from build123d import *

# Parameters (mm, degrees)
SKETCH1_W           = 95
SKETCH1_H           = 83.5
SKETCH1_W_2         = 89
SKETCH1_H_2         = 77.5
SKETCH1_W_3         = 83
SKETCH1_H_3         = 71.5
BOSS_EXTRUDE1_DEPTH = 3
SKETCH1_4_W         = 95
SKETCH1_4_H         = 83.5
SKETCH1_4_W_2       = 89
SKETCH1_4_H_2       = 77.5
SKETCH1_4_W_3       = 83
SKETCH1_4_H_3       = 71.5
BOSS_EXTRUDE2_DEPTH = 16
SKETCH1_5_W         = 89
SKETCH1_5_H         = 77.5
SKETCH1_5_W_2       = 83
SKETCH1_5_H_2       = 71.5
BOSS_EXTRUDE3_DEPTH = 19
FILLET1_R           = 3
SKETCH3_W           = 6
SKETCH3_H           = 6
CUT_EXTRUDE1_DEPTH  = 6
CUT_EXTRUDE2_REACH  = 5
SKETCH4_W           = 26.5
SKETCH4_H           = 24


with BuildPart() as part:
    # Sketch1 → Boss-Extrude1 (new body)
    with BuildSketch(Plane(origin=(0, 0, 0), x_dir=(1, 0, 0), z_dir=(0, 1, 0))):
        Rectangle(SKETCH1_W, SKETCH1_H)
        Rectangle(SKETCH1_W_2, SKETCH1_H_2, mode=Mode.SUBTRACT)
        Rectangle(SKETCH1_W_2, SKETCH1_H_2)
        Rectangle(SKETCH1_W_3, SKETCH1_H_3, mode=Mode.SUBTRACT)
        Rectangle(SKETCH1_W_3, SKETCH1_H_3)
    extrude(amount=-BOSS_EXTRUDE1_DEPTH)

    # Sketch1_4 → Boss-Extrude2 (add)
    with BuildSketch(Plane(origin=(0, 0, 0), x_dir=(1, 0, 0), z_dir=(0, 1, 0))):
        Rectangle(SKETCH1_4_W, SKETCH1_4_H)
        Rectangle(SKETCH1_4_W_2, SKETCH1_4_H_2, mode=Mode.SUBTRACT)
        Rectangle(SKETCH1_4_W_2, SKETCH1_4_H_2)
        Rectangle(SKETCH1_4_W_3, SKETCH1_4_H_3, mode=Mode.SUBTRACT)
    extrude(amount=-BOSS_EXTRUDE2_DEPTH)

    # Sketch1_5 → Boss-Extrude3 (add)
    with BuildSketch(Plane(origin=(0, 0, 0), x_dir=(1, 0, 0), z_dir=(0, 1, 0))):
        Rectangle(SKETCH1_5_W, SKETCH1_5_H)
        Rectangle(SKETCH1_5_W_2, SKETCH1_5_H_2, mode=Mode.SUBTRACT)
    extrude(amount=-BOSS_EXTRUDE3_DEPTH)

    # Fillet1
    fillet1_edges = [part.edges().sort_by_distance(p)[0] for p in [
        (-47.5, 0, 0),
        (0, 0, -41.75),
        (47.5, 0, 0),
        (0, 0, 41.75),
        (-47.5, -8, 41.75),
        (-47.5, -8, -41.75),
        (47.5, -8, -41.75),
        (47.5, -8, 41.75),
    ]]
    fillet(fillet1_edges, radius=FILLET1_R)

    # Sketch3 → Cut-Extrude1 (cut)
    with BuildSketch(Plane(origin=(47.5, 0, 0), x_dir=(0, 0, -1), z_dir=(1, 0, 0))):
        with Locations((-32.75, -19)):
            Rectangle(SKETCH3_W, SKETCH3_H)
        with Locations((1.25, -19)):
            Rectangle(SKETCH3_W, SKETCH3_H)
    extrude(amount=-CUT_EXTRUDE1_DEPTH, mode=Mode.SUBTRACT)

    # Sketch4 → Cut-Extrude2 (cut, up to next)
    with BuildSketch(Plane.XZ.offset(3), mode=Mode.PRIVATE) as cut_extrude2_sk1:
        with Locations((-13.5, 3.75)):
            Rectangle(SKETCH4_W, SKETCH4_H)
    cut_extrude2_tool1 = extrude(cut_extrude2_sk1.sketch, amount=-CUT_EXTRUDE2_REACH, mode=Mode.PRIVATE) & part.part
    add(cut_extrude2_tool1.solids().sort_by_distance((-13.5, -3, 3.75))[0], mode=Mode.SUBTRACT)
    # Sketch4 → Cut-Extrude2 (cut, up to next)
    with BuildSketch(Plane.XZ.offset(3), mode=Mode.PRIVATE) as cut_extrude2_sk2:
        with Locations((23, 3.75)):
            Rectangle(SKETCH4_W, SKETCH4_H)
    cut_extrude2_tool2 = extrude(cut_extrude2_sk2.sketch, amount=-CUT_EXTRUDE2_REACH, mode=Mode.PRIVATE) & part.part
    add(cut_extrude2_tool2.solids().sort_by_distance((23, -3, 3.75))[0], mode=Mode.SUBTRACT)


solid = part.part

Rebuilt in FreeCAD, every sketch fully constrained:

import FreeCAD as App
import Part
import Sketcher
from FreeCAD import Vector


def edges_at(feature, points):
    """Names of the edges that pass closest to the given points."""
    edges = feature.Shape.Edges
    near = lambda p: min(range(len(edges)), key=lambda i: edges[i].distToShape(Part.Vertex(*p))[0])
    return sorted({f"Edge{near(p) + 1}" for p in points})


def add_polygon(sketch, points):
    """Adds a closed chain of lines whose ends are joined by coincident constraints."""
    first, n = sketch.GeometryCount, len(points)
    for a, b in zip(points, points[1:] + points[:1]):
        sketch.addGeometry(Part.LineSegment(App.Vector(*a, 0), App.Vector(*b, 0)), False)
    for i in range(n):
        sketch.addConstraint(Sketcher.Constraint("Coincident", first + i, 2, first + (i + 1) % n, 1))

doc = App.newDocument("Part")
params = doc.addObject("Spreadsheet::Sheet", "Params")
for row, (alias, value) in enumerate([
    ("sketch1_width", "95 mm"),
    ("sketch1_height", "83.5 mm"),
    ("pad1_length", "3 mm"),
    ("sketch2_width", "95 mm"),
    ("sketch2_width2", "83 mm"),
    ("sketch2_height", "83.5 mm"),
    ("sketch2_height2", "71.5 mm"),
    ("pad2_length", "16 mm"),
    ("sketch3_width", "89 mm"),
    ("sketch3_width2", "83 mm"),
    ("sketch3_height", "77.5 mm"),
    ("sketch3_height2", "71.5 mm"),
    ("pad3_length", "19 mm"),
    ("fillet_radius", "3 mm"),
    ("sketch4_width", "6 mm"),
    ("pocket1_length", "6 mm"),
    ("sketch5_height", "24 mm"),
    ("sketch5_width", "26.5 mm"),
    ("sketch6_height", "24 mm"),
    ("sketch6_width", "26.5 mm"),
], start=1):
    params.set(f"A{row}", alias)
    params.set(f"B{row}", "=" + value)
    params.setAlias(f"B{row}", alias)

body = doc.addObject("PartDesign::Body", "Body")

# Sketch on XZ plane
sketch1 = body.newObject("Sketcher::SketchObject", "Sketch")
sketch1.AttachmentSupport = (doc.getObject("XZ_Plane"), [""])
sketch1.MapMode = "FlatFace"
add_polygon(sketch1, [(-48, -42), (-48, 42), (48, 42), (48, -42)])  # lines 0-3
sketch1.addConstraint([
    Sketcher.Constraint("Vertical", 0),
    Sketcher.Constraint("Horizontal", 1),
    Sketcher.Constraint("Vertical", 2),
    Sketcher.Constraint("Horizontal", 3),
    Sketcher.Constraint("Symmetric", 0, 2, 2, 2, -1, 1),
    Sketcher.Constraint("DistanceX", 1, 1, 1, 2, 95.0),
    Sketcher.Constraint("DistanceY", 0, 1, 0, 2, 83.5),
])
sketch1.setExpression("Constraints[9]", "Params.sketch1_width")
sketch1.setExpression("Constraints[10]", "Params.sketch1_height")
pad1 = body.newObject("PartDesign::Pad", "Pad")
pad1.Profile = sketch1
pad1.setExpression("Length", "Params.pad1_length")

# Sketch on XZ plane
sketch2 = body.newObject("Sketcher::SketchObject", "Sketch001")
sketch2.AttachmentSupport = (doc.getObject("XZ_Plane"), [""])
sketch2.MapMode = "FlatFace"
add_polygon(sketch2, [(-48, -42), (-48, 42), (48, 42), (48, -42)])  # lines 0-3
add_polygon(sketch2, [(42, 36), (-42, 36), (-42, -36), (42, -36)])  # lines 4-7
sketch2.addConstraint([
    Sketcher.Constraint("Vertical", 0),
    Sketcher.Constraint("Horizontal", 1),
    Sketcher.Constraint("Vertical", 2),
    Sketcher.Constraint("Horizontal", 3),
    Sketcher.Constraint("Horizontal", 4),
    Sketcher.Constraint("Vertical", 5),
    Sketcher.Constraint("Horizontal", 6),
    Sketcher.Constraint("Vertical", 7),
    Sketcher.Constraint("Symmetric", 0, 2, 2, 2, -1, 1),
    Sketcher.Constraint("Symmetric", 4, 2, 6, 2, -1, 1),
    Sketcher.Constraint("DistanceX", 1, 1, 1, 2, 95.0),
    Sketcher.Constraint("DistanceX", 4, 2, 4, 1, 83.0),
    Sketcher.Constraint("DistanceY", 0, 1, 0, 2, 83.5),
    Sketcher.Constraint("DistanceY", 5, 2, 5, 1, 71.5),
])
sketch2.setExpression("Constraints[18]", "Params.sketch2_width")
sketch2.setExpression("Constraints[19]", "Params.sketch2_width2")
sketch2.setExpression("Constraints[20]", "Params.sketch2_height")
sketch2.setExpression("Constraints[21]", "Params.sketch2_height2")
pad2 = body.newObject("PartDesign::Pad", "Pad001")
pad2.Profile = sketch2
pad2.setExpression("Length", "Params.pad2_length")

# Sketch on XZ plane
sketch3 = body.newObject("Sketcher::SketchObject", "Sketch002")
sketch3.AttachmentSupport = (doc.getObject("XZ_Plane"), [""])
sketch3.MapMode = "FlatFace"
add_polygon(sketch3, [(-44, -39), (-44, 39), (44, 39), (44, -39)])  # lines 0-3
add_polygon(sketch3, [(42, 36), (-42, 36), (-42, -36), (42, -36)])  # lines 4-7
sketch3.addConstraint([
    Sketcher.Constraint("Vertical", 0),
    Sketcher.Constraint("Horizontal", 1),
    Sketcher.Constraint("Vertical", 2),
    Sketcher.Constraint("Horizontal", 3),
    Sketcher.Constraint("Horizontal", 4),
    Sketcher.Constraint("Vertical", 5),
    Sketcher.Constraint("Horizontal", 6),
    Sketcher.Constraint("Vertical", 7),
    Sketcher.Constraint("Symmetric", 0, 2, 2, 2, -1, 1),
    Sketcher.Constraint("Symmetric", 4, 2, 6, 2, -1, 1),
    Sketcher.Constraint("DistanceX", 1, 1, 1, 2, 89.0),
    Sketcher.Constraint("DistanceX", 4, 2, 4, 1, 83.0),
    Sketcher.Constraint("DistanceY", 0, 1, 0, 2, 77.5),
    Sketcher.Constraint("DistanceY", 5, 2, 5, 1, 71.5),
])
sketch3.setExpression("Constraints[18]", "Params.sketch3_width")
sketch3.setExpression("Constraints[19]", "Params.sketch3_width2")
sketch3.setExpression("Constraints[20]", "Params.sketch3_height")
sketch3.setExpression("Constraints[21]", "Params.sketch3_height2")
pad3 = body.newObject("PartDesign::Pad", "Pad002")
pad3.Profile = sketch3
pad3.setExpression("Length", "Params.pad3_length")
doc.recompute()

fillet = body.newObject("PartDesign::Fillet", "Fillet")
fillet.Base = (pad3, edges_at(pad3, [
    (-47.5, 0, 0),
    (0, 0, -41.75),
    (47.5, 0, 0),
    (0, 0, 41.75),
    (-47.5, -8, 41.75),
    (-47.5, -8, -41.75),
    (47.5, -8, -41.75),
    (47.5, -8, 41.75),
]))
fillet.setExpression("Radius", "Params.fillet_radius")

# Sketch on YZ plane
sketch4 = body.newObject("Sketcher::SketchObject", "Sketch003")
sketch4.AttachmentSupport = (doc.getObject("YZ_Plane"), [""])
sketch4.MapMode = "FlatFace"
sketch4.AttachmentOffset = App.Placement(Vector(0, 0, 47.5), App.Rotation())
add_polygon(sketch4, [(-16, 36), (-22, 36), (-22, 30), (-16, 30)])  # lines 0-3
add_polygon(sketch4, [(-16, 2), (-22, 2), (-22, -4), (-16, -4)])  # lines 4-7
sketch4.addConstraint([
    Sketcher.Constraint("Horizontal", 0),
    Sketcher.Constraint("Vertical", 1),
    Sketcher.Constraint("Horizontal", 2),
    Sketcher.Constraint("Vertical", 3),
    Sketcher.Constraint("Horizontal", 4),
    Sketcher.Constraint("Vertical", 5),
    Sketcher.Constraint("Horizontal", 6),
    Sketcher.Constraint("Vertical", 7),
    Sketcher.Constraint("Vertical", 1, 2, 4, 2),
    Sketcher.Constraint("Vertical", 3, 2, 6, 2),
    Sketcher.Constraint("Equal", 6, 1),
    Sketcher.Constraint("Equal", 3, 5),
    Sketcher.Constraint("DistanceX", 0, 2, 0, 1, 6.0),
    Sketcher.Constraint("DistanceX", 0, 2, -1, 1, 22.0),
    Sketcher.Constraint("DistanceY", 4, 2, 1, 2, 28.0),
    Sketcher.Constraint("DistanceY", -1, 1, 0, 2, 35.75),
])
sketch4.setExpression("Constraints[20]", "Params.sketch4_width")
pocket1 = body.newObject("PartDesign::Pocket", "Pocket")
pocket1.Profile = sketch4
pocket1.setExpression("Length", "Params.pocket1_length")

# Sketch on XZ plane
sketch5 = body.newObject("Sketcher::SketchObject", "Sketch004")
sketch5.AttachmentSupport = (doc.getObject("XZ_Plane"), [""])
sketch5.MapMode = "FlatFace"
sketch5.AttachmentOffset = App.Placement(Vector(0, 0, 3), App.Rotation())
add_polygon(sketch5, [(-27, 16), (-27, -8), (0, -8), (0, 16)])  # lines 0-3
sketch5.addConstraint([
    Sketcher.Constraint("Vertical", 0),
    Sketcher.Constraint("Horizontal", 1),
    Sketcher.Constraint("Vertical", 2),
    Sketcher.Constraint("Horizontal", 3),
    Sketcher.Constraint("DistanceY", 0, 2, 0, 1, 24.0),
    Sketcher.Constraint("DistanceX", 1, 1, 1, 2, 26.5),
    Sketcher.Constraint("DistanceX", 0, 2, -1, 1, 26.75),
    Sketcher.Constraint("DistanceY", 0, 2, -1, 1, 8.25),
])
sketch5.setExpression("Constraints[8]", "Params.sketch5_height")
sketch5.setExpression("Constraints[9]", "Params.sketch5_width")
pocket2 = body.newObject("PartDesign::Pocket", "Pocket001")
pocket2.Profile = sketch5
pocket2.Type = "UpToFirst"

# Sketch on XZ plane
sketch6 = body.newObject("Sketcher::SketchObject", "Sketch005")
sketch6.AttachmentSupport = (doc.getObject("XZ_Plane"), [""])
sketch6.MapMode = "FlatFace"
sketch6.AttachmentOffset = App.Placement(Vector(0, 0, 3), App.Rotation())
add_polygon(sketch6, [(10, 16), (10, -8), (36, -8), (36, 16)])  # lines 0-3
sketch6.addConstraint([
    Sketcher.Constraint("Vertical", 0),
    Sketcher.Constraint("Horizontal", 1),
    Sketcher.Constraint("Vertical", 2),
    Sketcher.Constraint("Horizontal", 3),
    Sketcher.Constraint("DistanceY", 0, 2, 0, 1, 24.0),
    Sketcher.Constraint("DistanceX", 1, 1, 1, 2, 26.5),
    Sketcher.Constraint("DistanceX", -1, 1, 0, 2, 9.75),
    Sketcher.Constraint("DistanceY", 0, 2, -1, 1, 8.25),
])
sketch6.setExpression("Constraints[8]", "Params.sketch6_height")
sketch6.setExpression("Constraints[9]", "Params.sketch6_width")
pocket3 = body.newObject("PartDesign::Pocket", "Pocket002")
pocket3.Profile = sketch6
pocket3.Type = "UpToFirst"

doc.recompute()
